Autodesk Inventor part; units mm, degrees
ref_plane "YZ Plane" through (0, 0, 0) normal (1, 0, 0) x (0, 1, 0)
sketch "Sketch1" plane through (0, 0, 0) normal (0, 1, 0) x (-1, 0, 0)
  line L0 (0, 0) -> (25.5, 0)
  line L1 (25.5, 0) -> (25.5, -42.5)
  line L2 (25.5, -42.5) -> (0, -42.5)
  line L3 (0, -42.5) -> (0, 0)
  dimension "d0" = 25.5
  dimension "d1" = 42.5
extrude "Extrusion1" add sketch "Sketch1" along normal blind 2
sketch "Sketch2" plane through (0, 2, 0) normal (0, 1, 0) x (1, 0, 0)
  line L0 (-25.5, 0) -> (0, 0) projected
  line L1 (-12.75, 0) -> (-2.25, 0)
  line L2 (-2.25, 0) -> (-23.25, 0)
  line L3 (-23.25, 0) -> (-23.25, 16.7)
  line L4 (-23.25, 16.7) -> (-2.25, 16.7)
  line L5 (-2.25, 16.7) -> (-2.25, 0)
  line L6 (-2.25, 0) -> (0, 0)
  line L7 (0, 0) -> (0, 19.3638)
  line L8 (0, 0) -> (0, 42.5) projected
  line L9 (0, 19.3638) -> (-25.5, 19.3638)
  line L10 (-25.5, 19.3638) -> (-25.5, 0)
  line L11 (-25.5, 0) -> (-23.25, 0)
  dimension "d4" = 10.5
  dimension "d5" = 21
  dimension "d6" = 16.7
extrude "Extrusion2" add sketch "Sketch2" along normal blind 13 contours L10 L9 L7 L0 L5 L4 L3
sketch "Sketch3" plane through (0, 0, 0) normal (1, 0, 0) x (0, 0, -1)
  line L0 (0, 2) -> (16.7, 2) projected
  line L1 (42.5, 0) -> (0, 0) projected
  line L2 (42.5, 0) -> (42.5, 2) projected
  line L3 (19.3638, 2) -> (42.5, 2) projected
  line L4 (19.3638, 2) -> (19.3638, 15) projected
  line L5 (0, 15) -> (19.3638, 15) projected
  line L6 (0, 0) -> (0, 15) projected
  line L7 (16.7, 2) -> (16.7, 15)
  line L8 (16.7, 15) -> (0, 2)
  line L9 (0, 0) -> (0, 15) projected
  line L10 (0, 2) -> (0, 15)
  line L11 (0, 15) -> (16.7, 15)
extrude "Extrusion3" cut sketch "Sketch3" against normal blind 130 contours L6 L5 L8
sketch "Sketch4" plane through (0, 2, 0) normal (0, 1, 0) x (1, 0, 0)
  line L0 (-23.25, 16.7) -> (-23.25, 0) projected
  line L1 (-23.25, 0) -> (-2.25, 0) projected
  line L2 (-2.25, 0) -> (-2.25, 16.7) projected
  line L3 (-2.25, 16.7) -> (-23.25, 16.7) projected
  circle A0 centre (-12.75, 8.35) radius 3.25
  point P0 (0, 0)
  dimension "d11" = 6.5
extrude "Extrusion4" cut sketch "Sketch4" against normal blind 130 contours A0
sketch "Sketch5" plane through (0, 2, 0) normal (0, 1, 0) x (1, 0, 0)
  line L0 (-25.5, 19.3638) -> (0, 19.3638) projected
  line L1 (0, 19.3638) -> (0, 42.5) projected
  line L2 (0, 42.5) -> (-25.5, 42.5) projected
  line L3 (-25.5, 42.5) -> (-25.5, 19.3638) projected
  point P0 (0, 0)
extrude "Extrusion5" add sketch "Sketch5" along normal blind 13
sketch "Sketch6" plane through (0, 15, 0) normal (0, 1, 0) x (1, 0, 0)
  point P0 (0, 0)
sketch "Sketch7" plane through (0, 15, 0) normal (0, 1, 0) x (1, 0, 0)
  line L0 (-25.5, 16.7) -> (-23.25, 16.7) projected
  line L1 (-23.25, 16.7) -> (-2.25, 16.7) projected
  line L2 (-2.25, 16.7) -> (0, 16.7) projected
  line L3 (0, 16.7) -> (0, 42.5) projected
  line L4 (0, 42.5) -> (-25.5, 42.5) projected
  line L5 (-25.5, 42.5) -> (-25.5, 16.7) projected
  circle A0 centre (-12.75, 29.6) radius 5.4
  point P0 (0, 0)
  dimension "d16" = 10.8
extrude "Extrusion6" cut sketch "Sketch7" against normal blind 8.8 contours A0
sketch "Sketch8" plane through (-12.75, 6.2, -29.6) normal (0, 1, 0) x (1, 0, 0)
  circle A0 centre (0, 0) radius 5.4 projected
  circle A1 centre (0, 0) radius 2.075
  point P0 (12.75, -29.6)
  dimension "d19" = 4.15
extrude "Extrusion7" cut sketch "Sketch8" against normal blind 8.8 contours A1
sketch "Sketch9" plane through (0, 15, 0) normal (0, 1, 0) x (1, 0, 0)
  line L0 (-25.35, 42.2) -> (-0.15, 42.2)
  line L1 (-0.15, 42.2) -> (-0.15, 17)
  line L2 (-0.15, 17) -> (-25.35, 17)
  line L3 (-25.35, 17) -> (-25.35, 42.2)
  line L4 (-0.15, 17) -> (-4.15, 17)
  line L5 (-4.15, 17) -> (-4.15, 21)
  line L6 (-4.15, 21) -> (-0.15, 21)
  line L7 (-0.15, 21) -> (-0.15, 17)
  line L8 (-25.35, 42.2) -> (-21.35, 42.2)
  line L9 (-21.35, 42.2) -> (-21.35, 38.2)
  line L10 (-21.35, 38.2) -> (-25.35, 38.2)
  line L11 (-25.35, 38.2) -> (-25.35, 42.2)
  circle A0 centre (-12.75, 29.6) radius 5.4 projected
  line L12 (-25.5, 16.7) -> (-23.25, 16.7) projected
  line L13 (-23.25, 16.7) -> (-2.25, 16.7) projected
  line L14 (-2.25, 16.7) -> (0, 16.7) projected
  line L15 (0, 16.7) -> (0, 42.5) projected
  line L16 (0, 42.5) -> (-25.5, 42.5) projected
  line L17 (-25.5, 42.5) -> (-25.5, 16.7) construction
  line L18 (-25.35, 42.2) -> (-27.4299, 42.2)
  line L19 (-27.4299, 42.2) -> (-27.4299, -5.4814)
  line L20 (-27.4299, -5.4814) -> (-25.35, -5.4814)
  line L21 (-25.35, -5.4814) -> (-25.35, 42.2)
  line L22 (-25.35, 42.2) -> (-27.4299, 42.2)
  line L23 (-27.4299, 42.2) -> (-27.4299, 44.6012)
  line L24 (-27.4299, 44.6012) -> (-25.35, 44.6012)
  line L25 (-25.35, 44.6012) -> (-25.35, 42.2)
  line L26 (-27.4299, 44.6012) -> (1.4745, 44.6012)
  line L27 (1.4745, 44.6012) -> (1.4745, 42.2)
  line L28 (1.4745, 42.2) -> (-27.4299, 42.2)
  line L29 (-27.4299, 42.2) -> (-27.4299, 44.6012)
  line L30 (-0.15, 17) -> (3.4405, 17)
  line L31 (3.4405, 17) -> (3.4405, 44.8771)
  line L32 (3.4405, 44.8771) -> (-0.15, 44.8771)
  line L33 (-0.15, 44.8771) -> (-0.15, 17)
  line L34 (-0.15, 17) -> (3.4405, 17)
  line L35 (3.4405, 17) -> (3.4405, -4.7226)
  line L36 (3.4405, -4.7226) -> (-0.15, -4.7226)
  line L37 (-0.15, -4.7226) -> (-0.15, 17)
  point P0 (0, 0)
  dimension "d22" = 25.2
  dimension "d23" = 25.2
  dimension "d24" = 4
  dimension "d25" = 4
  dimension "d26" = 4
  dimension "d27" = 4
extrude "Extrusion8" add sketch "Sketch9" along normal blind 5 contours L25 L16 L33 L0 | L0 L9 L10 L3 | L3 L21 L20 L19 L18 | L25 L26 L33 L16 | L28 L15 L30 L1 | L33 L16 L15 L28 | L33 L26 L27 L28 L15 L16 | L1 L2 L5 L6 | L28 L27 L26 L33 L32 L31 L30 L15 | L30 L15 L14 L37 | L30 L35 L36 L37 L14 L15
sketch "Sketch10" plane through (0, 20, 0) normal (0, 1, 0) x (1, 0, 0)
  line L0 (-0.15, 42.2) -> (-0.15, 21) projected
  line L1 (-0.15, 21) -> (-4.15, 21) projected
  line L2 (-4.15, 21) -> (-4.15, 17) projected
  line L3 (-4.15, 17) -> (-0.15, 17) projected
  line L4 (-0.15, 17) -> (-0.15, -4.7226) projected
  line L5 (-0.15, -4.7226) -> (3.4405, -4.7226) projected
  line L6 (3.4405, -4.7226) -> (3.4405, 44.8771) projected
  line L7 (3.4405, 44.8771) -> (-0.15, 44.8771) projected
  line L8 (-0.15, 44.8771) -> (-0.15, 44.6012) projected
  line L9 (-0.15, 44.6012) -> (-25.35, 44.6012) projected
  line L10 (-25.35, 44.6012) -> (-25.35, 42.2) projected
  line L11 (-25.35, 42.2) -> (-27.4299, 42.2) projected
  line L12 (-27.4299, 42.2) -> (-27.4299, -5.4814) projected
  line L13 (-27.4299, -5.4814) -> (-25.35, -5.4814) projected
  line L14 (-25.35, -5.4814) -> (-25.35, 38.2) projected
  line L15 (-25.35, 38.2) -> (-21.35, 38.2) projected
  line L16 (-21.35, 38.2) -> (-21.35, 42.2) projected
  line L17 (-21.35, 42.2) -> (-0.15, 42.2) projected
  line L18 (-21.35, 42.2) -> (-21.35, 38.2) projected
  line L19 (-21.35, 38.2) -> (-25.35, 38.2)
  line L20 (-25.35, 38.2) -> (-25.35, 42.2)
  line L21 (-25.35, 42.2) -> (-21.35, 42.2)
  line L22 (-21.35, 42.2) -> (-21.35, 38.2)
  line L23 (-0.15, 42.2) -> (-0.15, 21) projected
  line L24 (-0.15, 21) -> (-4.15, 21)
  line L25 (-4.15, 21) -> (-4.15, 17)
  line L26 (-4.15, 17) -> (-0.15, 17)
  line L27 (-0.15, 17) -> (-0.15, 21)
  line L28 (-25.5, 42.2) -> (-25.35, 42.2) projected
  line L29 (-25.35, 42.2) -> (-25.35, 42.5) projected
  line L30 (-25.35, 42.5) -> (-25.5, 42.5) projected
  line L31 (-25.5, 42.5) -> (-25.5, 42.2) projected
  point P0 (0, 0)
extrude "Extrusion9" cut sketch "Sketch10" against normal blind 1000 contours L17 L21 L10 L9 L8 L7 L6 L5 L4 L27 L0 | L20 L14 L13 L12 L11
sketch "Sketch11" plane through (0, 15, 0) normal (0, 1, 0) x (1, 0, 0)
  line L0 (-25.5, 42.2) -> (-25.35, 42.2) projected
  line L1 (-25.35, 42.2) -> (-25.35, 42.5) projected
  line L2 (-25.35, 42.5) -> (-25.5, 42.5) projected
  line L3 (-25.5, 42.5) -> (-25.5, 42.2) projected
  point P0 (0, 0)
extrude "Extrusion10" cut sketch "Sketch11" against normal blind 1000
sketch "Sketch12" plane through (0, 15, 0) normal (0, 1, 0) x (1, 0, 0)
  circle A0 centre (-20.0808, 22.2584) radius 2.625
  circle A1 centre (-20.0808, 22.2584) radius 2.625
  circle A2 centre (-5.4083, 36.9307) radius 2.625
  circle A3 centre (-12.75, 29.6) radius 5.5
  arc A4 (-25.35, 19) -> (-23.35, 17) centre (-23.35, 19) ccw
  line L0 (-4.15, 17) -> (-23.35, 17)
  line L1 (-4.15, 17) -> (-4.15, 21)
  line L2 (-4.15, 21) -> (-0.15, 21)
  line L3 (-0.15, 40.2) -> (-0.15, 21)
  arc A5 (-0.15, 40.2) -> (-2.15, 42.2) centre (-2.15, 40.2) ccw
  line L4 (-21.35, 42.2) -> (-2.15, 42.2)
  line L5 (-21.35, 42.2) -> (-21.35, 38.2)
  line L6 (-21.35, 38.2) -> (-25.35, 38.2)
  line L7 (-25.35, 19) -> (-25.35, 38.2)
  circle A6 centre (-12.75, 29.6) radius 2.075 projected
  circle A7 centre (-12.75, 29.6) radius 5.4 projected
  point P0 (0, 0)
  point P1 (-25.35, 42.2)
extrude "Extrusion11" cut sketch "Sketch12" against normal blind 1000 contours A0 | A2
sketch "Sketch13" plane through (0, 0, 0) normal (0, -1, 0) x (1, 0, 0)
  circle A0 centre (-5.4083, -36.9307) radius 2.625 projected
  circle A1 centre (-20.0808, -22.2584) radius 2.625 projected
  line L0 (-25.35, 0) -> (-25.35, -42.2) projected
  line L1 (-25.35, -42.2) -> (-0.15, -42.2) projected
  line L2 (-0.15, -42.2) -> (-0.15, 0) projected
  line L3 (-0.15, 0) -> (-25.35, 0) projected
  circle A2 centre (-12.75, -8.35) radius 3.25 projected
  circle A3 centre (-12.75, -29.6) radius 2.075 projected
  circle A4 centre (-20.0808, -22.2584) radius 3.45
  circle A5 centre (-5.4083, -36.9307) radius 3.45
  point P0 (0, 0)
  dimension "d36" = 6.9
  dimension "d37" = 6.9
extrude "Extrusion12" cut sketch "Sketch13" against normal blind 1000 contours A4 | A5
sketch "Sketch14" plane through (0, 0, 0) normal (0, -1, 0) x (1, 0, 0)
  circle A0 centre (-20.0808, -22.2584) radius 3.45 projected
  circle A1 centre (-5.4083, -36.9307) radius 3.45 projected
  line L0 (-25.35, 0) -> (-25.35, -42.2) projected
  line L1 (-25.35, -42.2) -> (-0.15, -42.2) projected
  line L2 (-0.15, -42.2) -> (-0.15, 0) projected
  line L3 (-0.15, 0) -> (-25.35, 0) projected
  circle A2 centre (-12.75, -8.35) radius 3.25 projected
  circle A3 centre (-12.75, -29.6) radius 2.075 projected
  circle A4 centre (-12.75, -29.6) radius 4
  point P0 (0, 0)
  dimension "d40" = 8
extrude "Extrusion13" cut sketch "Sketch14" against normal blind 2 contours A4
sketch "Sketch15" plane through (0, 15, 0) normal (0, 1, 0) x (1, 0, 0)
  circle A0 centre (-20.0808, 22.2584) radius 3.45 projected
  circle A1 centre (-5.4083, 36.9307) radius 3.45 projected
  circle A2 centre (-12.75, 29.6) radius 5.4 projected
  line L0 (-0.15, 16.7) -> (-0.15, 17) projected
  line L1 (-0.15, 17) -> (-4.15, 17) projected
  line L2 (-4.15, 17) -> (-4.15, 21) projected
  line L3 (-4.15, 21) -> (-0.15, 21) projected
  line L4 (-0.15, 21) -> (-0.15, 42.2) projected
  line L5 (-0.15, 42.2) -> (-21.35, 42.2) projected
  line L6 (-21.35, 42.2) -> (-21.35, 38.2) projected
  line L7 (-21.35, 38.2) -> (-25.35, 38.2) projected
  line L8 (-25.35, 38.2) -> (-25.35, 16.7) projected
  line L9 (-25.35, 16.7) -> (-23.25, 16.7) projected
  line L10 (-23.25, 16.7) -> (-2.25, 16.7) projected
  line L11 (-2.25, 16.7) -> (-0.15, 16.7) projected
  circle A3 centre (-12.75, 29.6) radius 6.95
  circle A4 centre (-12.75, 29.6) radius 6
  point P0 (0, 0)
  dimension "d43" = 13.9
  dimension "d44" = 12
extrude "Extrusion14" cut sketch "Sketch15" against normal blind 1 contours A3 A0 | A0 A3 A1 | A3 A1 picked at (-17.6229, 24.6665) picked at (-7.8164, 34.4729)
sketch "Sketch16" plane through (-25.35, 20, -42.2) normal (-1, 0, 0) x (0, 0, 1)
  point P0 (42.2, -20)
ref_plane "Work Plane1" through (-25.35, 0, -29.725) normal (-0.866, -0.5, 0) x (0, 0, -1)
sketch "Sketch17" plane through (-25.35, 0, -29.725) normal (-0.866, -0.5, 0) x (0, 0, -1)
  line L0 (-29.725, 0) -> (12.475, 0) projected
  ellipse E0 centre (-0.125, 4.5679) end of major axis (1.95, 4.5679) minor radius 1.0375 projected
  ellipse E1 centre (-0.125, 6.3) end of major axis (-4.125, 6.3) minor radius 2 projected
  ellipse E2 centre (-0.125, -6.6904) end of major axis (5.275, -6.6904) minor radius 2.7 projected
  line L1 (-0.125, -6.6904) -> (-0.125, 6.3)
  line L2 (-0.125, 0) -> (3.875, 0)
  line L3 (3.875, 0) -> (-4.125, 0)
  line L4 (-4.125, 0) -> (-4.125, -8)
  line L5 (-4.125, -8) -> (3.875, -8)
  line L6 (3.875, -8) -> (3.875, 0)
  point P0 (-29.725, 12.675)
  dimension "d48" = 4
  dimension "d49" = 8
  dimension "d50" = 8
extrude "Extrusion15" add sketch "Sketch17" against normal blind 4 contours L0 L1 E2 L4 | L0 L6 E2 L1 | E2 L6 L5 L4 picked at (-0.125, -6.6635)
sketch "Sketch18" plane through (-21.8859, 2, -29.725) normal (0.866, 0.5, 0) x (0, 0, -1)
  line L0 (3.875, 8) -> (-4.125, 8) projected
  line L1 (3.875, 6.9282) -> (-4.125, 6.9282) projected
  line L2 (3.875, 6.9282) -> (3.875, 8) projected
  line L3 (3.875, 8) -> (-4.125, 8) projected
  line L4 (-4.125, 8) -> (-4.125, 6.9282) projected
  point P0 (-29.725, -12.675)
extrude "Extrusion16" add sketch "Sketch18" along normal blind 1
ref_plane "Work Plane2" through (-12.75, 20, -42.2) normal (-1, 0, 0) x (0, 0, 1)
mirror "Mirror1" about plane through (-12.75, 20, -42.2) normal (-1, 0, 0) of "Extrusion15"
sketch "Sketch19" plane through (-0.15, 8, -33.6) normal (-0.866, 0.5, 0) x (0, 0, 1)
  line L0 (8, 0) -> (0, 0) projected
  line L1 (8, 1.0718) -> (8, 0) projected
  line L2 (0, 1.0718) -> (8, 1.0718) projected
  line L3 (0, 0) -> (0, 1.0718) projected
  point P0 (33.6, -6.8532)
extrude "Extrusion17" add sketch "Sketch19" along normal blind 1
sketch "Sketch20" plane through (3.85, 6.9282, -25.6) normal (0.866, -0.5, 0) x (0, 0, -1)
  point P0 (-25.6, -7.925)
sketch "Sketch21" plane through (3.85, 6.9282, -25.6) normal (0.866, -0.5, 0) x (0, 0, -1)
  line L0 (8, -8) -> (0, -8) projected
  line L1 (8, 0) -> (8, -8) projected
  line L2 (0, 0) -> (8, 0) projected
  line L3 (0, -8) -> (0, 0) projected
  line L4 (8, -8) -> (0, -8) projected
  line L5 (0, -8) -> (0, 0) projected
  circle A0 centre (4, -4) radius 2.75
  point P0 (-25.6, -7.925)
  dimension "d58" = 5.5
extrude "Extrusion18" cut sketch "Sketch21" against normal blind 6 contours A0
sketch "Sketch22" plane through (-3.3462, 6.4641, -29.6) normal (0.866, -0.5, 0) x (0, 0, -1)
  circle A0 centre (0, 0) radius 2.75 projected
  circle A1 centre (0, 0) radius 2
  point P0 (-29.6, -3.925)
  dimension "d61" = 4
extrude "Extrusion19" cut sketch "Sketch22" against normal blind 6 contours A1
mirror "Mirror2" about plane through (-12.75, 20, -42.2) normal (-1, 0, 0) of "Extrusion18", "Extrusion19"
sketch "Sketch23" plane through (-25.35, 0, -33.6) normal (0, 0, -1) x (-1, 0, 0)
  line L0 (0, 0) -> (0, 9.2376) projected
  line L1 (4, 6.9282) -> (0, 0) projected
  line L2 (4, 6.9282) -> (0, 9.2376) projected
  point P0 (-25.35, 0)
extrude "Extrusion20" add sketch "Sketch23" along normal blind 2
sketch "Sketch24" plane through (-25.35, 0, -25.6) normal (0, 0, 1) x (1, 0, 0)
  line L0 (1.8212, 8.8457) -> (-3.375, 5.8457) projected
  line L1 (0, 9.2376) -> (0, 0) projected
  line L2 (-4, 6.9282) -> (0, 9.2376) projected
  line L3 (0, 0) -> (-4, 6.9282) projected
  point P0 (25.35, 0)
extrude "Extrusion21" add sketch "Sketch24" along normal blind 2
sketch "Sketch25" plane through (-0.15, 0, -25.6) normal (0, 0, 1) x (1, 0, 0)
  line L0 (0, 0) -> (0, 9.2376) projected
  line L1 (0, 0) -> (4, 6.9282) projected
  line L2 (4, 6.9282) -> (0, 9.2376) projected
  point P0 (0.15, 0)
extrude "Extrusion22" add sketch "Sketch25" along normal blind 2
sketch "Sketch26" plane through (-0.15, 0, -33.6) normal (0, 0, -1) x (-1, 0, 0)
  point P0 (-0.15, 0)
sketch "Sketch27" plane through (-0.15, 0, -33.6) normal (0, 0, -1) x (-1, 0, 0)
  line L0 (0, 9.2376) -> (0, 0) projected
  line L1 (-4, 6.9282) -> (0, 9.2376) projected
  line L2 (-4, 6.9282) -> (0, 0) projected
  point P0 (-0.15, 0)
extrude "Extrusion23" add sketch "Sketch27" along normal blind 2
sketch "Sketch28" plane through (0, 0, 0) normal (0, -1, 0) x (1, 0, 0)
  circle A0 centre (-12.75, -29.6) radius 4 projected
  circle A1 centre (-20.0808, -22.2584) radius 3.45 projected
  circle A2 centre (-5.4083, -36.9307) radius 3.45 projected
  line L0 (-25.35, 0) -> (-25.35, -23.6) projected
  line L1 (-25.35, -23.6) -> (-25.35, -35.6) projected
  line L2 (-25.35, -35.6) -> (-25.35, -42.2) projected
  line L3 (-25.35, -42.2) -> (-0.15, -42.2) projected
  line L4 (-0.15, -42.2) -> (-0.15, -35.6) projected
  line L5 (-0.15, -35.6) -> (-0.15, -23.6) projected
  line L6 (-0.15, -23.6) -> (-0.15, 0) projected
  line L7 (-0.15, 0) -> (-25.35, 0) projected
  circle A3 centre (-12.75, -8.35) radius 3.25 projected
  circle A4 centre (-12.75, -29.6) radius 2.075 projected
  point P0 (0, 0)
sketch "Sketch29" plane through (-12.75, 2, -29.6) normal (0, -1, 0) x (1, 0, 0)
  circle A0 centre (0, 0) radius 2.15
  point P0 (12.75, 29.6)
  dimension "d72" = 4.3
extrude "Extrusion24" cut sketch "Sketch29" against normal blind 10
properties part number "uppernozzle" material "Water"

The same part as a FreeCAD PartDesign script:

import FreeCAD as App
import Part
import Sketcher

V = App.Vector
Q = App.Units.Quantity

doc = App.newDocument("Part")
body = doc.addObject("PartDesign::Body", "Body")
body.AllowCompound = True

sketch1 = body.newObject("Sketcher::SketchObject", "Sketch")
sketch1.AttachmentSupport = (doc.getObject("XZ_Plane"), [""])
sketch1.MapMode = "FlatFace"
sketch1.addGeometry(Part.LineSegment(V(-26, 0, 0), V(0, 0, 0)), False)
sketch1.addGeometry(Part.LineSegment(V(0, 0, 0), V(0, -42, 0)), False)
sketch1.addGeometry(Part.LineSegment(V(0, -42, 0), V(-26, -42, 0)), False)
sketch1.addGeometry(Part.LineSegment(V(-26, -42, 0), V(-26, 0, 0)), False)
sketch1.addConstraint(Sketcher.Constraint("Coincident", 0, 2, 1, 1))
sketch1.addConstraint(Sketcher.Constraint("Coincident", 1, 2, 2, 1))
sketch1.addConstraint(Sketcher.Constraint("Coincident", 2, 2, 3, 1))
sketch1.addConstraint(Sketcher.Constraint("Coincident", 3, 2, 0, 1))
sketch1.addConstraint(Sketcher.Constraint("Horizontal", 0))
sketch1.addConstraint(Sketcher.Constraint("Vertical", 1))
sketch1.addConstraint(Sketcher.Constraint("Horizontal", 2))
sketch1.addConstraint(Sketcher.Constraint("Vertical", 3))
sketch1.addConstraint(Sketcher.Constraint("Coincident", 0, 2, -1, 1))
sketch1.addConstraint(Sketcher.Constraint("DistanceX", 0, 1, 0, 2, Q("25.5 mm")))
sketch1.addConstraint(Sketcher.Constraint("DistanceY", 1, 2, 1, 1, Q("42.5 mm")))
pad1 = body.newObject("PartDesign::Pad", "Pad")
pad1.Profile = sketch1
pad1.Length = 2
pad1.Reversed = True

sketch2 = body.newObject("Sketcher::SketchObject", "Sketch001")
sketch2.AttachmentSupport = (doc.getObject("XZ_Plane"), [""])
sketch2.MapMode = "FlatFace"
sketch2.AttachmentOffset = App.Placement(V(0, 0, -2), App.Rotation())
sketch2.addGeometry(Part.LineSegment(V(-25.5, -19.4, 0), V(-25.5, 0, 0)), False)
sketch2.addGeometry(Part.LineSegment(V(-25.5, 0, 0), V(-23.2, 0, 0)), False)
sketch2.addGeometry(Part.LineSegment(V(-23.2, 0, 0), V(-23.2, -16.7, 0)), False)
sketch2.addGeometry(Part.LineSegment(V(-23.2, -16.7, 0), V(-2.2, -16.7, 0)), False)
sketch2.addGeometry(Part.LineSegment(V(-2.2, -16.7, 0), V(-2.2, 0, 0)), False)
sketch2.addGeometry(Part.LineSegment(V(-2.2, 0, 0), V(0, 0, 0)), False)
sketch2.addGeometry(Part.LineSegment(V(0, 0, 0), V(0, -19.4, 0)), False)
sketch2.addGeometry(Part.LineSegment(V(0, -19.4, 0), V(-25.5, -19.4, 0)), False)
sketch2.addConstraint(Sketcher.Constraint("Coincident", 0, 2, 1, 1))
sketch2.addConstraint(Sketcher.Constraint("Coincident", 1, 2, 2, 1))
sketch2.addConstraint(Sketcher.Constraint("Coincident", 2, 2, 3, 1))
sketch2.addConstraint(Sketcher.Constraint("Coincident", 3, 2, 4, 1))
sketch2.addConstraint(Sketcher.Constraint("Coincident", 4, 2, 5, 1))
sketch2.addConstraint(Sketcher.Constraint("Coincident", 5, 2, 6, 1))
sketch2.addConstraint(Sketcher.Constraint("Coincident", 6, 2, 7, 1))
sketch2.addConstraint(Sketcher.Constraint("Coincident", 7, 2, 0, 1))
sketch2.addConstraint(Sketcher.Constraint("Vertical", 0))
sketch2.addConstraint(Sketcher.Constraint("Horizontal", 1))
sketch2.addConstraint(Sketcher.Constraint("Vertical", 2))
sketch2.addConstraint(Sketcher.Constraint("Horizontal", 3))
sketch2.addConstraint(Sketcher.Constraint("Vertical", 4))
sketch2.addConstraint(Sketcher.Constraint("Horizontal", 5))
sketch2.addConstraint(Sketcher.Constraint("Vertical", 6))
sketch2.addConstraint(Sketcher.Constraint("Horizontal", 7))
sketch2.addConstraint(Sketcher.Constraint("Coincident", 5, 2, -1, 1))
sketch2.addConstraint(Sketcher.Constraint("PointOnObject", 0, 2, -1))
sketch2.addConstraint(Sketcher.Constraint("Equal", 1, 5))
sketch2.addConstraint(Sketcher.Constraint("DistanceX", 3, 1, 3, 2, Q("21 mm")))
sketch2.addConstraint(Sketcher.Constraint("DistanceY", 2, 2, 2, 1, Q("16.7 mm")))
sketch2.addConstraint(Sketcher.Constraint("DistanceX", 7, 2, 7, 1, Q("25.5 mm")))
sketch2.addConstraint(Sketcher.Constraint("DistanceY", 0, 1, 0, 2, Q("19.3638 mm")))
pad2 = body.newObject("PartDesign::Pad", "Pad001")
pad2.Profile = sketch2
pad2.Length = 13
pad2.Reversed = True

sketch3 = body.newObject("Sketcher::SketchObject", "Sketch002")
sketch3.AttachmentSupport = (doc.getObject("YZ_Plane"), [""])
sketch3.MapMode = "FlatFace"
sketch3.addGeometry(Part.LineSegment(V(15, 0, 0), V(2, 0, 0)), False)
sketch3.addGeometry(Part.LineSegment(V(2, 0, 0), V(15, -17, 0)), False)
sketch3.addGeometry(Part.LineSegment(V(15, -17, 0), V(15, 0, 0)), False)
sketch3.addConstraint(Sketcher.Constraint("Coincident", 0, 2, 1, 1))
sketch3.addConstraint(Sketcher.Constraint("Coincident", 1, 2, 2, 1))
sketch3.addConstraint(Sketcher.Constraint("Coincident", 2, 2, 0, 1))
sketch3.addConstraint(Sketcher.Constraint("Horizontal", 0))
sketch3.addConstraint(Sketcher.Constraint("Vertical", 2))
sketch3.addConstraint(Sketcher.Constraint("PointOnObject", 0, 2, -1))
sketch3.addConstraint(Sketcher.Constraint("DistanceX", 0, 2, 0, 1, Q("13 mm")))
sketch3.addConstraint(Sketcher.Constraint("DistanceY", 2, 1, 2, 2, Q("16.7 mm")))
sketch3.addConstraint(Sketcher.Constraint("DistanceX", -1, 1, 0, 2, Q("2 mm")))
pocket1 = body.newObject("PartDesign::Pocket", "Pocket")
pocket1.Profile = sketch3
pocket1.Length = 130

sketch4 = body.newObject("Sketcher::SketchObject", "Sketch003")
sketch4.AttachmentSupport = (doc.getObject("XZ_Plane"), [""])
sketch4.MapMode = "FlatFace"
sketch4.AttachmentOffset = App.Placement(V(0, 0, -2), App.Rotation())
sketch4.addGeometry(Part.Circle(V(-12.8, -8.3, 0), V(0, 0, 1), 3.2), False)
sketch4.addConstraint(Sketcher.Constraint("Diameter", 0, Q("6.5 mm")))
sketch4.addConstraint(Sketcher.Constraint("DistanceX", 0, 3, -1, 1, Q("12.75 mm")))
sketch4.addConstraint(Sketcher.Constraint("DistanceY", 0, 3, -1, 1, Q("8.35 mm")))
pocket2 = body.newObject("PartDesign::Pocket", "Pocket001")
pocket2.Profile = sketch4
pocket2.Length = 130
pocket2.Reversed = True

sketch5 = body.newObject("Sketcher::SketchObject", "Sketch004")
sketch5.AttachmentSupport = (doc.getObject("XZ_Plane"), [""])
sketch5.MapMode = "FlatFace"
sketch5.AttachmentOffset = App.Placement(V(0, 0, -2), App.Rotation())
sketch5.addGeometry(Part.LineSegment(V(-26, -42, 0), V(-26, -19, 0)), False)
sketch5.addGeometry(Part.LineSegment(V(-26, -19, 0), V(0, -19, 0)), False)
sketch5.addGeometry(Part.LineSegment(V(0, -19, 0), V(0, -42, 0)), False)
sketch5.addGeometry(Part.LineSegment(V(0, -42, 0), V(-26, -42, 0)), False)
sketch5.addConstraint(Sketcher.Constraint("Coincident", 0, 2, 1, 1))
sketch5.addConstraint(Sketcher.Constraint("Coincident", 1, 2, 2, 1))
sketch5.addConstraint(Sketcher.Constraint("Coincident", 2, 2, 3, 1))
sketch5.addConstraint(Sketcher.Constraint("Coincident", 3, 2, 0, 1))
sketch5.addConstraint(Sketcher.Constraint("Vertical", 0))
sketch5.addConstraint(Sketcher.Constraint("Horizontal", 1))
sketch5.addConstraint(Sketcher.Constraint("Vertical", 2))
sketch5.addConstraint(Sketcher.Constraint("Horizontal", 3))
sketch5.addConstraint(Sketcher.Constraint("PointOnObject", 1, 2, -2))
sketch5.addConstraint(Sketcher.Constraint("DistanceX", 1, 1, 1, 2, Q("25.5 mm")))
sketch5.addConstraint(Sketcher.Constraint("DistanceY", 2, 2, -1, 1, Q("42.5 mm")))
sketch5.addConstraint(Sketcher.Constraint("DistanceY", 0, 1, 0, 2, Q("23.1362 mm")))
pad3 = body.newObject("PartDesign::Pad", "Pad002")
pad3.Profile = sketch5
pad3.Length = 13
pad3.Reversed = True

sketch6 = body.newObject("Sketcher::SketchObject", "Sketch005")
sketch6.AttachmentSupport = (doc.getObject("XZ_Plane"), [""])
sketch6.MapMode = "FlatFace"
sketch6.AttachmentOffset = App.Placement(V(0, 0, -15), App.Rotation())
sketch6.addGeometry(Part.Circle(V(-13, -30, 0), V(0, 0, 1), 5), False)
sketch6.addConstraint(Sketcher.Constraint("Diameter", 0, Q("10.8 mm")))
sketch6.addConstraint(Sketcher.Constraint("DistanceY", 0, 3, -1, 1, Q("29.6 mm")))
sketch6.addConstraint(Sketcher.Constraint("DistanceX", 0, 3, -1, 1, Q("12.75 mm")))
pocket3 = body.newObject("PartDesign::Pocket", "Pocket002")
pocket3.Profile = sketch6
pocket3.Length = 8.8
pocket3.Reversed = True

sketch7 = body.newObject("Sketcher::SketchObject", "Sketch006")
sketch7.AttachmentSupport = (doc.getObject("XZ_Plane"), [""])
sketch7.MapMode = "FlatFace"
sketch7.AttachmentOffset = App.Placement(V(0, 0, -6.2), App.Rotation())
sketch7.addGeometry(Part.Circle(V(-12.8, -29.6, 0), V(0, 0, 1), 2.1), False)
sketch7.addConstraint(Sketcher.Constraint("Diameter", 0, Q("4.15 mm")))
sketch7.addConstraint(Sketcher.Constraint("DistanceY", 0, 3, -1, 1, Q("29.6 mm")))
sketch7.addConstraint(Sketcher.Constraint("DistanceX", 0, 3, -1, 1, Q("12.75 mm")))
pocket4 = body.newObject("PartDesign::Pocket", "Pocket003")
pocket4.Profile = sketch7
pocket4.Length = 8.8
pocket4.Reversed = True

sketch8 = body.newObject("Sketcher::SketchObject", "Sketch007")
sketch8.AttachmentSupport = (doc.getObject("XZ_Plane"), [""])
sketch8.MapMode = "FlatFace"
sketch8.AttachmentOffset = App.Placement(V(0, 0, -15), App.Rotation())
sketch8.addGeometry(Part.LineSegment(V(-25.35, -42.2, 0), V(-27.43, -42.2, 0)), False)
sketch8.addGeometry(Part.LineSegment(V(-27.43, -42.2, 0), V(-27.43, 5.48, 0)), False)
sketch8.addGeometry(Part.LineSegment(V(-27.43, 5.48, 0), V(-25.35, 5.48, 0)), False)
sketch8.addGeometry(Part.LineSegment(V(-25.35, 5.48, 0), V(-25.35, -38.2, 0)), False)
sketch8.addGeometry(Part.LineSegment(V(-25.35, -38.2, 0), V(-21.35, -38.2, 0)), False)
sketch8.addGeometry(Part.LineSegment(V(-21.35, -38.2, 0), V(-21.35, -42.2, 0)), False)
sketch8.addGeometry(Part.LineSegment(V(-21.35, -42.2, 0), V(-0.15, -42.2, 0)), False)
sketch8.addGeometry(Part.LineSegment(V(-0.15, -42.2, 0), V(-0.15, -21, 0)), False)
sketch8.addGeometry(Part.LineSegment(V(-0.15, -21, 0), V(-4.15, -21, 0)), False)
sketch8.addGeometry(Part.LineSegment(V(-4.15, -21, 0), V(-4.15, -17, 0)), False)
sketch8.addGeometry(Part.LineSegment(V(-4.15, -17, 0), V(-0.15, -17, 0)), False)
sketch8.addGeometry(Part.LineSegment(V(-0.15, -17, 0), V(-0.15, 4.72, 0)), False)
sketch8.addGeometry(Part.LineSegment(V(-0.15, 4.72, 0), V(3.44, 4.72, 0)), False)
sketch8.addGeometry(Part.LineSegment(V(3.44, 4.72, 0), V(3.44, -44.88, 0)), False)
sketch8.addGeometry(Part.LineSegment(V(3.44, -44.88, 0), V(-0.15, -44.88, 0)), False)
sketch8.addGeometry(Part.LineSegment(V(-0.15, -44.88, 0), V(-0.15, -44.6, 0)), False)
sketch8.addGeometry(Part.LineSegment(V(-0.15, -44.6, 0), V(-25.35, -44.6, 0)), False)
sketch8.addGeometry(Part.LineSegment(V(-25.35, -44.6, 0), V(-25.35, -42.2, 0)), False)
sketch8.addConstraint(Sketcher.Constraint("Coincident", 0, 2, 1, 1))
sketch8.addConstraint(Sketcher.Constraint("Coincident", 1, 2, 2, 1))
sketch8.addConstraint(Sketcher.Constraint("Coincident", 2, 2, 3, 1))
sketch8.addConstraint(Sketcher.Constraint("Coincident", 3, 2, 4, 1))
sketch8.addConstraint(Sketcher.Constraint("Coincident", 4, 2, 5, 1))
sketch8.addConstraint(Sketcher.Constraint("Coincident", 5, 2, 6, 1))
sketch8.addConstraint(Sketcher.Constraint("Coincident", 6, 2, 7, 1))
sketch8.addConstraint(Sketcher.Constraint("Coincident", 7, 2, 8, 1))
sketch8.addConstraint(Sketcher.Constraint("Coincident", 8, 2, 9, 1))
sketch8.addConstraint(Sketcher.Constraint("Coincident", 9, 2, 10, 1))
sketch8.addConstraint(Sketcher.Constraint("Coincident", 10, 2, 11, 1))
sketch8.addConstraint(Sketcher.Constraint("Coincident", 11, 2, 12, 1))
sketch8.addConstraint(Sketcher.Constraint("Coincident", 12, 2, 13, 1))
sketch8.addConstraint(Sketcher.Constraint("Coincident", 13, 2, 14, 1))
sketch8.addConstraint(Sketcher.Constraint("Coincident", 14, 2, 15, 1))
sketch8.addConstraint(Sketcher.Constraint("Coincident", 15, 2, 16, 1))
sketch8.addConstraint(Sketcher.Constraint("Coincident", 16, 2, 17, 1))
sketch8.addConstraint(Sketcher.Constraint("Coincident", 17, 2, 0, 1))
sketch8.addConstraint(Sketcher.Constraint("Horizontal", 0))
sketch8.addConstraint(Sketcher.Constraint("Vertical", 1))
sketch8.addConstraint(Sketcher.Constraint("Horizontal", 2))
sketch8.addConstraint(Sketcher.Constraint("Vertical", 3))
sketch8.addConstraint(Sketcher.Constraint("Horizontal", 4))
sketch8.addConstraint(Sketcher.Constraint("Vertical", 5))
sketch8.addConstraint(Sketcher.Constraint("Horizontal", 6))
sketch8.addConstraint(Sketcher.Constraint("Vertical", 7))
sketch8.addConstraint(Sketcher.Constraint("Horizontal", 8))
sketch8.addConstraint(Sketcher.Constraint("Vertical", 9))
sketch8.addConstraint(Sketcher.Constraint("Horizontal", 10))
sketch8.addConstraint(Sketcher.Constraint("Vertical", 11))
sketch8.addConstraint(Sketcher.Constraint("Horizontal", 12))
sketch8.addConstraint(Sketcher.Constraint("Vertical", 13))
sketch8.addConstraint(Sketcher.Constraint("Horizontal", 14))
sketch8.addConstraint(Sketcher.Constraint("Vertical", 15))
sketch8.addConstraint(Sketcher.Constraint("Horizontal", 16))
sketch8.addConstraint(Sketcher.Constraint("Vertical", 17))
sketch8.addConstraint(Sketcher.Constraint("Horizontal", 0, 2, 5, 2))
sketch8.addConstraint(Sketcher.Constraint("Vertical", 7, 2, 10, 2))
sketch8.addConstraint(Sketcher.Constraint("Vertical", 11, 2, 14, 2))
sketch8.addConstraint(Sketcher.Constraint("Vertical", 3, 2, 16, 2))
sketch8.addConstraint(Sketcher.Constraint("Equal", 4, 8))
sketch8.addConstraint(Sketcher.Constraint("Equal", 10, 5))
sketch8.addConstraint(Sketcher.Constraint("Equal", 6, 7))
sketch8.addConstraint(Sketcher.Constraint("Equal", 5, 9))
sketch8.addConstraint(Sketcher.Constraint("DistanceX", 4, 1, 4, 2, Q("4 mm")))
sketch8.addConstraint(Sketcher.Constraint("DistanceX", 16, 2, 16, 1, Q("25.2 mm")))
sketch8.addConstraint(Sketcher.Constraint("DistanceY", 7, 2, -1, 1, Q("21 mm")))
sketch8.addConstraint(Sketcher.Constraint("DistanceX", 0, 2, 0, 1, Q("2.08 mm")))
sketch8.addConstraint(Sketcher.Constraint("DistanceY", 15, 1, 15, 2, Q("0.276 mm")))
sketch8.addConstraint(Sketcher.Constraint("DistanceX", 0, 2, -1, 1, Q("27.43 mm")))
sketch8.addConstraint(Sketcher.Constraint("DistanceX", 12, 1, 12, 2, Q("3.5905 mm")))
sketch8.addConstraint(Sketcher.Constraint("DistanceY", 1, 1, 1, 2, Q("47.6814 mm")))
sketch8.addConstraint(Sketcher.Constraint("DistanceY", 11, 1, 11, 2, Q("21.7226 mm")))
sketch8.addConstraint(Sketcher.Constraint("DistanceY", 13, 2, 13, 1, Q("49.5997 mm")))
pad4 = body.newObject("PartDesign::Pad", "Pad003")
pad4.Profile = sketch8
pad4.Length = 5
pad4.Reversed = True

sketch9 = body.newObject("Sketcher::SketchObject", "Sketch008")
sketch9.AttachmentSupport = (doc.getObject("XZ_Plane"), [""])
sketch9.MapMode = "FlatFace"
sketch9.AttachmentOffset = App.Placement(V(0, 0, -20), App.Rotation())
sketch9.addGeometry(Part.LineSegment(V(-25.35, -42.2, 0), V(-0.15, -42.2, 0)), False)
sketch9.addGeometry(Part.LineSegment(V(-0.15, -42.2, 0), V(-0.15, 4.72, 0)), False)
sketch9.addGeometry(Part.LineSegment(V(-0.15, 4.72, 0), V(3.44, 4.72, 0)), False)
sketch9.addGeometry(Part.LineSegment(V(3.44, 4.72, 0), V(3.44, -44.88, 0)), False)
sketch9.addGeometry(Part.LineSegment(V(3.44, -44.88, 0), V(-0.15, -44.88, 0)), False)
sketch9.addGeometry(Part.LineSegment(V(-0.15, -44.88, 0), V(-0.15, -44.6, 0)), False)
sketch9.addGeometry(Part.LineSegment(V(-0.15, -44.6, 0), V(-25.35, -44.6, 0)), False)
sketch9.addGeometry(Part.LineSegment(V(-25.35, -44.6, 0), V(-25.35, -42.2, 0)), False)
sketch9.addGeometry(Part.LineSegment(V(-25.35, 5.48, 0), V(-25.35, -42.2, 0)), False)
sketch9.addGeometry(Part.LineSegment(V(-25.35, -42.2, 0), V(-27.43, -42.2, 0)), False)
sketch9.addGeometry(Part.LineSegment(V(-27.43, -42.2, 0), V(-27.43, 5.48, 0)), False)
sketch9.addGeometry(Part.LineSegment(V(-27.43, 5.48, 0), V(-25.35, 5.48, 0)), False)
sketch9.addConstraint(Sketcher.Constraint("Coincident", 0, 2, 1, 1))
sketch9.addConstraint(Sketcher.Constraint("Coincident", 1, 2, 2, 1))
sketch9.addConstraint(Sketcher.Constraint("Coincident", 2, 2, 3, 1))
sketch9.addConstraint(Sketcher.Constraint("Coincident", 3, 2, 4, 1))
sketch9.addConstraint(Sketcher.Constraint("Coincident", 4, 2, 5, 1))
sketch9.addConstraint(Sketcher.Constraint("Coincident", 5, 2, 6, 1))
sketch9.addConstraint(Sketcher.Constraint("Coincident", 6, 2, 7, 1))
sketch9.addConstraint(Sketcher.Constraint("Coincident", 7, 2, 0, 1))
sketch9.addConstraint(Sketcher.Constraint("Coincident", 8, 2, 9, 1))
sketch9.addConstraint(Sketcher.Constraint("Coincident", 9, 2, 10, 1))
sketch9.addConstraint(Sketcher.Constraint("Coincident", 10, 2, 11, 1))
sketch9.addConstraint(Sketcher.Constraint("Coincident", 11, 2, 8, 1))
sketch9.addConstraint(Sketcher.Constraint("Horizontal", 0))
sketch9.addConstraint(Sketcher.Constraint("Vertical", 1))
sketch9.addConstraint(Sketcher.Constraint("Horizontal", 2))
sketch9.addConstraint(Sketcher.Constraint("Vertical", 3))
sketch9.addConstraint(Sketcher.Constraint("Horizontal", 4))
sketch9.addConstraint(Sketcher.Constraint("Vertical", 5))
sketch9.addConstraint(Sketcher.Constraint("Horizontal", 6))
sketch9.addConstraint(Sketcher.Constraint("Vertical", 7))
sketch9.addConstraint(Sketcher.Constraint("Vertical", 8))
sketch9.addConstraint(Sketcher.Constraint("Horizontal", 9))
sketch9.addConstraint(Sketcher.Constraint("Vertical", 10))
sketch9.addConstraint(Sketcher.Constraint("Horizontal", 11))
sketch9.addConstraint(Sketcher.Constraint("Coincident", 8, 2, 7, 2))
sketch9.addConstraint(Sketcher.Constraint("Vertical", 1, 2, 4, 2))
sketch9.addConstraint(Sketcher.Constraint("DistanceX", 0, 1, 0, 2, Q("25.2 mm")))
sketch9.addConstraint(Sketcher.Constraint("DistanceX", 9, 2, 9, 1, Q("2.08 mm")))
sketch9.addConstraint(Sketcher.Constraint("DistanceY", 0, 2, -1, 1, Q("42.2 mm")))
sketch9.addConstraint(Sketcher.Constraint("DistanceY", 5, 1, 5, 2, Q("0.276 mm")))
sketch9.addConstraint(Sketcher.Constraint("DistanceX", 0, 2, -1, 1, Q("0.15 mm")))
sketch9.addConstraint(Sketcher.Constraint("DistanceX", 2, 1, 2, 2, Q("3.5905 mm")))
sketch9.addConstraint(Sketcher.Constraint("DistanceY", 1, 1, 1, 2, Q("46.9226 mm")))
sketch9.addConstraint(Sketcher.Constraint("DistanceY", 3, 2, 3, 1, Q("49.5997 mm")))
sketch9.addConstraint(Sketcher.Constraint("DistanceY", 8, 2, 8, 1, Q("47.6814 mm")))
pocket5 = body.newObject("PartDesign::Pocket", "Pocket004")
pocket5.Profile = sketch9
pocket5.Length = 1000
pocket5.Reversed = True

sketch10 = body.newObject("Sketcher::SketchObject", "Sketch009")
sketch10.AttachmentSupport = (doc.getObject("XZ_Plane"), [""])
sketch10.MapMode = "FlatFace"
sketch10.AttachmentOffset = App.Placement(V(0, 0, -15), App.Rotation())
sketch10.addGeometry(Part.LineSegment(V(-25.5, -42.5, 0), V(-25.5, -42.2, 0)), False)
sketch10.addGeometry(Part.LineSegment(V(-25.5, -42.2, 0), V(-25.35, -42.2, 0)), False)
sketch10.addGeometry(Part.LineSegment(V(-25.35, -42.2, 0), V(-25.35, -42.5, 0)), False)
sketch10.addGeometry(Part.LineSegment(V(-25.35, -42.5, 0), V(-25.5, -42.5, 0)), False)
sketch10.addConstraint(Sketcher.Constraint("Coincident", 0, 2, 1, 1))
sketch10.addConstraint(Sketcher.Constraint("Coincident", 1, 2, 2, 1))
sketch10.addConstraint(Sketcher.Constraint("Coincident", 2, 2, 3, 1))
sketch10.addConstraint(Sketcher.Constraint("Coincident", 3, 2, 0, 1))
sketch10.addConstraint(Sketcher.Constraint("Vertical", 0))
sketch10.addConstraint(Sketcher.Constraint("Horizontal", 1))
sketch10.addConstraint(Sketcher.Constraint("Vertical", 2))
sketch10.addConstraint(Sketcher.Constraint("Horizontal", 3))
sketch10.addConstraint(Sketcher.Constraint("DistanceY", 0, 1, 0, 2, Q("0.3 mm")))
sketch10.addConstraint(Sketcher.Constraint("DistanceX", 1, 1, 1, 2, Q("0.15 mm")))
sketch10.addConstraint(Sketcher.Constraint("DistanceX", 0, 2, -1, 1, Q("25.5 mm")))
sketch10.addConstraint(Sketcher.Constraint("DistanceY", 0, 2, -1, 1, Q("42.2 mm")))
pocket6 = body.newObject("PartDesign::Pocket", "Pocket005")
pocket6.Profile = sketch10
pocket6.Length = 1000
pocket6.Reversed = True

sketch11 = body.newObject("Sketcher::SketchObject", "Sketch010")
sketch11.AttachmentSupport = (doc.getObject("XZ_Plane"), [""])
sketch11.MapMode = "FlatFace"
sketch11.AttachmentOffset = App.Placement(V(0, 0, -15), App.Rotation())
sketch11.addGeometry(Part.Circle(V(-20.1, -22.3, 0), V(0, 0, 1), 2.6), False)
sketch11.addGeometry(Part.Circle(V(-5.4, -36.9, 0), V(0, 0, 1), 2.6), False)
sketch11.addConstraint(Sketcher.Constraint("Equal", 0, 1))
sketch11.addConstraint(Sketcher.Constraint("Diameter", 0, Q("5.25 mm")))
sketch11.addConstraint(Sketcher.Constraint("DistanceX", 0, 3, -1, 1, Q("20.0808 mm")))
sketch11.addConstraint(Sketcher.Constraint("DistanceY", 0, 3, -1, 1, Q("22.2584 mm")))
sketch11.addConstraint(Sketcher.Constraint("DistanceX", 1, 3, -1, 1, Q("5.4083 mm")))
sketch11.addConstraint(Sketcher.Constraint("DistanceY", 1, 3, -1, 1, Q("36.9307 mm")))
pocket7 = body.newObject("PartDesign::Pocket", "Pocket006")
pocket7.Profile = sketch11
pocket7.Length = 1000
pocket7.Reversed = True

sketch12 = body.newObject("Sketcher::SketchObject", "Sketch011")
sketch12.AttachmentSupport = (doc.getObject("XZ_Plane"), [""])
sketch12.MapMode = "FlatFace"
sketch12.addGeometry(Part.Circle(V(-20.1, -22.3, 0), V(0, 0, 1), 3.5), False)
sketch12.addGeometry(Part.Circle(V(-20.1, -22.3, 0), V(0, 0, 1), 2.6), False)
sketch12.addGeometry(Part.Circle(V(-5.4, -36.9, 0), V(0, 0, 1), 3.5), False)
sketch12.addGeometry(Part.Circle(V(-5.4, -36.9, 0), V(0, 0, 1), 2.6), False)
sketch12.addConstraint(Sketcher.Constraint("Coincident", 1, 3, 0, 3))
sketch12.addConstraint(Sketcher.Constraint("Coincident", 3, 3, 2, 3))
sketch12.addConstraint(Sketcher.Constraint("Equal", 0, 2))
sketch12.addConstraint(Sketcher.Constraint("Equal", 1, 3))
sketch12.addConstraint(Sketcher.Constraint("Diameter", 0, Q("6.9 mm")))
sketch12.addConstraint(Sketcher.Constraint("Diameter", 1, Q("5.25 mm")))
sketch12.addConstraint(Sketcher.Constraint("DistanceX", 0, 3, -1, 1, Q("20.0808 mm")))
sketch12.addConstraint(Sketcher.Constraint("DistanceY", 0, 3, -1, 1, Q("22.2584 mm")))
sketch12.addConstraint(Sketcher.Constraint("DistanceX", 2, 3, -1, 1, Q("5.4083 mm")))
sketch12.addConstraint(Sketcher.Constraint("DistanceY", 2, 3, -1, 1, Q("36.9307 mm")))
pocket8 = body.newObject("PartDesign::Pocket", "Pocket007")
pocket8.Profile = sketch12
pocket8.Length = 1000

sketch13 = body.newObject("Sketcher::SketchObject", "Sketch012")
sketch13.AttachmentSupport = (doc.getObject("XZ_Plane"), [""])
sketch13.MapMode = "FlatFace"
sketch13.addGeometry(Part.Circle(V(-12.8, -29.6, 0), V(0, 0, 1), 4), False)
sketch13.addGeometry(Part.Circle(V(-12.8, -29.6, 0), V(0, 0, 1), 2.1), False)
sketch13.addConstraint(Sketcher.Constraint("Coincident", 1, 3, 0, 3))
sketch13.addConstraint(Sketcher.Constraint("Diameter", 0, Q("8 mm")))
sketch13.addConstraint(Sketcher.Constraint("Diameter", 1, Q("4.15 mm")))
sketch13.addConstraint(Sketcher.Constraint("DistanceY", 0, 3, -1, 1, Q("29.6 mm")))
sketch13.addConstraint(Sketcher.Constraint("DistanceX", 0, 3, -1, 1, Q("12.75 mm")))
pocket9 = body.newObject("PartDesign::Pocket", "Pocket008")
pocket9.Profile = sketch13
pocket9.Length = 2

sketch14 = body.newObject("Sketcher::SketchObject", "Sketch013")
sketch14.AttachmentSupport = (doc.getObject("XZ_Plane"), [""])
sketch14.MapMode = "FlatFace"
sketch14.AttachmentOffset = App.Placement(V(0, 0, -15), App.Rotation())
sketch14.addGeometry(Part.Circle(V(-13, -30, 0), V(0, 0, 1), 7), False)
sketch14.addGeometry(Part.Circle(V(-13, -30, 0), V(0, 0, 1), 6), False)
sketch14.addConstraint(Sketcher.Constraint("Coincident", 1, 3, 0, 3))
sketch14.addConstraint(Sketcher.Constraint("Diameter", 1, Q("12 mm")))
sketch14.addConstraint(Sketcher.Constraint("Diameter", 0, Q("13.9 mm")))
sketch14.addConstraint(Sketcher.Constraint("DistanceY", 0, 3, -1, 1, Q("29.6 mm")))
sketch14.addConstraint(Sketcher.Constraint("DistanceX", 0, 3, -1, 1, Q("12.75 mm")))
pocket10 = body.newObject("PartDesign::Pocket", "Pocket009")
pocket10.Profile = sketch14
pocket10.Length = 1
pocket10.Reversed = True

sketch15 = body.newObject("Sketcher::SketchObject", "Sketch014")
sketch15.Placement = App.Placement(V(-25.35, 0, -29.725), App.Rotation(V(0, 0, -1), V(0.5, -0.866025404, 0), V(-0.866025404, -0.5, 0), "ZXY"))
sketch15.addGeometry(Part.LineSegment(V(-4, 0, 0), V(-4, -8, 0)), False)
sketch15.addGeometry(Part.LineSegment(V(-4, -8, 0), V(4, -8, 0)), False)
sketch15.addGeometry(Part.LineSegment(V(4, -8, 0), V(4, 0, 0)), False)
sketch15.addGeometry(Part.LineSegment(V(4, 0, 0), V(-4, 0, 0)), False)
sketch15.addConstraint(Sketcher.Constraint("Coincident", 0, 2, 1, 1))
sketch15.addConstraint(Sketcher.Constraint("Coincident", 1, 2, 2, 1))
sketch15.addConstraint(Sketcher.Constraint("Coincident", 2, 2, 3, 1))
sketch15.addConstraint(Sketcher.Constraint("Coincident", 3, 2, 0, 1))
sketch15.addConstraint(Sketcher.Constraint("Vertical", 0))
sketch15.addConstraint(Sketcher.Constraint("Horizontal", 1))
sketch15.addConstraint(Sketcher.Constraint("Vertical", 2))
sketch15.addConstraint(Sketcher.Constraint("Horizontal", 3))
sketch15.addConstraint(Sketcher.Constraint("PointOnObject", 2, 2, -1))
sketch15.addConstraint(Sketcher.Constraint("Equal", 3, 0))
sketch15.addConstraint(Sketcher.Constraint("DistanceX", 1, 1, 1, 2, Q("8 mm")))
sketch15.addConstraint(Sketcher.Constraint("DistanceX", 0, 2, -1, 1, Q("4.125 mm")))
pad5 = body.newObject("PartDesign::Pad", "Pad004")
pad5.Profile = sketch15
pad5.Length = 4
pad5.Reversed = True

sketch16 = body.newObject("Sketcher::SketchObject", "Sketch015")
sketch16.Placement = App.Placement(V(-21.8859, 2, -29.725), App.Rotation(V(0, 0, -1), V(-0.5, 0.866025404, 0), V(0.866025404, 0.5, 0), "ZXY"))
sketch16.addGeometry(Part.LineSegment(V(3.9, 6.9, 0), V(3.9, 8, 0)), False)
sketch16.addGeometry(Part.LineSegment(V(3.9, 8, 0), V(-4.1, 8, 0)), False)
sketch16.addGeometry(Part.LineSegment(V(-4.1, 8, 0), V(-4.1, 6.9, 0)), False)
sketch16.addGeometry(Part.LineSegment(V(-4.1, 6.9, 0), V(3.9, 6.9, 0)), False)
sketch16.addConstraint(Sketcher.Constraint("Coincident", 0, 2, 1, 1))
sketch16.addConstraint(Sketcher.Constraint("Coincident", 1, 2, 2, 1))
sketch16.addConstraint(Sketcher.Constraint("Coincident", 2, 2, 3, 1))
sketch16.addConstraint(Sketcher.Constraint("Coincident", 3, 2, 0, 1))
sketch16.addConstraint(Sketcher.Constraint("Vertical", 0))
sketch16.addConstraint(Sketcher.Constraint("Horizontal", 1))
sketch16.addConstraint(Sketcher.Constraint("Vertical", 2))
sketch16.addConstraint(Sketcher.Constraint("Horizontal", 3))
sketch16.addConstraint(Sketcher.Constraint("DistanceX", 1, 2, 1, 1, Q("8 mm")))
sketch16.addConstraint(Sketcher.Constraint("DistanceY", -1, 1, 0, 2, Q("8 mm")))
sketch16.addConstraint(Sketcher.Constraint("DistanceY", 0, 1, 0, 2, Q("1.0718 mm")))
sketch16.addConstraint(Sketcher.Constraint("DistanceX", -1, 1, 0, 2, Q("3.875 mm")))
pad6 = body.newObject("PartDesign::Pad", "Pad005")
pad6.Profile = sketch16
pad6.Length = 1
doc.recompute()

datumplane = body.newObject("PartDesign::Plane", "DatumPlane")
datumplane.AttachmentSupport = (doc.getObject("YZ_Plane"), [""])
datumplane.MapMode = "FlatFace"
datumplane.AttachmentOffset = App.Placement(V(0, 0, -12.75), App.Rotation())
mirrored = body.newObject("PartDesign::Mirrored", "Mirrored")
mirrored.Originals = [pad5]
mirrored.MirrorPlane = (datumplane, [""])
body.Tip = mirrored

sketch17 = body.newObject("Sketcher::SketchObject", "Sketch016")
sketch17.Placement = App.Placement(V(-0.15, 8, -33.6), App.Rotation(V(0, 0, 1), V(0.5, 0.866025404, 0), V(-0.866025404, 0.5, 0), "ZXY"))
sketch17.addGeometry(Part.LineSegment(V(0, 0, 0), V(8, 0, 0)), False)
sketch17.addGeometry(Part.LineSegment(V(8, 0, 0), V(8, 1.1, 0)), False)
sketch17.addGeometry(Part.LineSegment(V(8, 1.1, 0), V(0, 1.1, 0)), False)
sketch17.addGeometry(Part.LineSegment(V(0, 1.1, 0), V(0, 0, 0)), False)
sketch17.addConstraint(Sketcher.Constraint("Coincident", 0, 2, 1, 1))
sketch17.addConstraint(Sketcher.Constraint("Coincident", 1, 2, 2, 1))
sketch17.addConstraint(Sketcher.Constraint("Coincident", 2, 2, 3, 1))
sketch17.addConstraint(Sketcher.Constraint("Coincident", 3, 2, 0, 1))
sketch17.addConstraint(Sketcher.Constraint("Horizontal", 0))
sketch17.addConstraint(Sketcher.Constraint("Vertical", 1))
sketch17.addConstraint(Sketcher.Constraint("Horizontal", 2))
sketch17.addConstraint(Sketcher.Constraint("Vertical", 3))
sketch17.addConstraint(Sketcher.Constraint("Coincident", 3, 2, -1, 1))
sketch17.addConstraint(Sketcher.Constraint("DistanceX", 0, 1, 0, 2, Q("8 mm")))
sketch17.addConstraint(Sketcher.Constraint("DistanceY", 1, 1, 1, 2, Q("1.0718 mm")))
pad7 = body.newObject("PartDesign::Pad", "Pad006")
pad7.Profile = sketch17
pad7.Length = 1

sketch18 = body.newObject("Sketcher::SketchObject", "Sketch017")
sketch18.Placement = App.Placement(V(3.85, 6.9282, -25.6), App.Rotation(V(0, 0, -1), V(0.5, 0.866025404, 0), V(0.866025404, -0.5, 0), "ZXY"))
sketch18.addGeometry(Part.Circle(V(4, -4, 0), V(0, 0, 1), 2.8), False)
sketch18.addConstraint(Sketcher.Constraint("Diameter", 0, Q("5.5 mm")))
sketch18.addConstraint(Sketcher.Constraint("DistanceX", -1, 1, 0, 3, Q("4 mm")))
sketch18.addConstraint(Sketcher.Constraint("DistanceY", 0, 3, -1, 1, Q("4 mm")))
pocket11 = body.newObject("PartDesign::Pocket", "Pocket010")
pocket11.Profile = sketch18
pocket11.Length = 6

sketch19 = body.newObject("Sketcher::SketchObject", "Sketch018")
sketch19.Placement = App.Placement(V(-3.3462, 6.4641, -29.6), App.Rotation(V(0, 0, -1), V(0.5, 0.866025404, 0), V(0.866025404, -0.5, 0), "ZXY"))
sketch19.addGeometry(Part.Circle(V(0, 0, 0), V(0, 0, 1), 2), False)
sketch19.addConstraint(Sketcher.Constraint("Coincident", 0, 3, -1, 1))
sketch19.addConstraint(Sketcher.Constraint("Diameter", 0, Q("4 mm")))
pocket12 = body.newObject("PartDesign::Pocket", "Pocket011")
pocket12.Profile = sketch19
pocket12.Length = 6
doc.recompute()

datumplane2 = body.newObject("PartDesign::Plane", "DatumPlane001")
datumplane2.AttachmentSupport = (doc.getObject("YZ_Plane"), [""])
datumplane2.MapMode = "FlatFace"
datumplane2.AttachmentOffset = App.Placement(V(0, 0, -12.75), App.Rotation())
mirrored2 = body.newObject("PartDesign::Mirrored", "Mirrored001")
mirrored2.Originals = [pocket11, pocket12]
mirrored2.MirrorPlane = (datumplane2, [""])
body.Tip = mirrored2

sketch20 = body.newObject("Sketcher::SketchObject", "Sketch019")
sketch20.AttachmentSupport = (doc.getObject("XY_Plane"), [""])
sketch20.MapMode = "FlatFace"
sketch20.AttachmentOffset = App.Placement(V(0, 0, -33.6), App.Rotation())
sketch20.addGeometry(Part.LineSegment(V(-25.4, 9.2, 0), V(-25.4, 0, 0)), False)
sketch20.addGeometry(Part.LineSegment(V(-25.4, 0, 0), V(-29.4, 6.9, 0)), False)
sketch20.addGeometry(Part.LineSegment(V(-29.4, 6.9, 0), V(-25.4, 9.2, 0)), False)
sketch20.addConstraint(Sketcher.Constraint("Coincident", 0, 2, 1, 1))
sketch20.addConstraint(Sketcher.Constraint("Coincident", 1, 2, 2, 1))
sketch20.addConstraint(Sketcher.Constraint("Coincident", 2, 2, 0, 1))
sketch20.addConstraint(Sketcher.Constraint("Vertical", 0))
sketch20.addConstraint(Sketcher.Constraint("PointOnObject", 0, 2, -1))
sketch20.addConstraint(Sketcher.Constraint("Perpendicular", 1, 2))
sketch20.addConstraint(Sketcher.Constraint("Angle", 1, Q("120 deg")))
sketch20.addConstraint(Sketcher.Constraint("Distance", 1, Q("8 mm")))
sketch20.addConstraint(Sketcher.Constraint("DistanceX", 0, 2, -1, 1, Q("25.35 mm")))
pad8 = body.newObject("PartDesign::Pad", "Pad007")
pad8.Profile = sketch20
pad8.Length = 2
pad8.Reversed = True

sketch21 = body.newObject("Sketcher::SketchObject", "Sketch020")
sketch21.AttachmentSupport = (doc.getObject("XY_Plane"), [""])
sketch21.MapMode = "FlatFace"
sketch21.AttachmentOffset = App.Placement(V(0, 0, -25.6), App.Rotation())
sketch21.addGeometry(Part.LineSegment(V(-25.4, 0, 0), V(-25.4, 9.2, 0)), False)
sketch21.addGeometry(Part.LineSegment(V(-25.4, 9.2, 0), V(-29.4, 6.9, 0)), False)
sketch21.addGeometry(Part.LineSegment(V(-29.4, 6.9, 0), V(-25.4, 0, 0)), False)
sketch21.addConstraint(Sketcher.Constraint("Coincident", 0, 2, 1, 1))
sketch21.addConstraint(Sketcher.Constraint("Coincident", 1, 2, 2, 1))
sketch21.addConstraint(Sketcher.Constraint("Coincident", 2, 2, 0, 1))
sketch21.addConstraint(Sketcher.Constraint("Vertical", 0))
sketch21.addConstraint(Sketcher.Constraint("PointOnObject", 2, 2, -1))
sketch21.addConstraint(Sketcher.Constraint("Perpendicular", 1, 2))
sketch21.addConstraint(Sketcher.Constraint("Angle", 1, Q("-150 deg")))
sketch21.addConstraint(Sketcher.Constraint("Distance", 2, Q("8 mm")))
sketch21.addConstraint(Sketcher.Constraint("DistanceX", 0, 2, -1, 1, Q("25.35 mm")))
pad9 = body.newObject("PartDesign::Pad", "Pad008")
pad9.Profile = sketch21
pad9.Length = 2

sketch22 = body.newObject("Sketcher::SketchObject", "Sketch021")
sketch22.AttachmentSupport = (doc.getObject("XY_Plane"), [""])
sketch22.MapMode = "FlatFace"
sketch22.AttachmentOffset = App.Placement(V(0, 0, -25.6), App.Rotation())
sketch22.addGeometry(Part.LineSegment(V(-0.1, 9.2, 0), V(-0.1, 0, 0)), False)
sketch22.addGeometry(Part.LineSegment(V(-0.1, 0, 0), V(3.9, 6.9, 0)), False)
sketch22.addGeometry(Part.LineSegment(V(3.9, 6.9, 0), V(-0.1, 9.2, 0)), False)
sketch22.addConstraint(Sketcher.Constraint("Coincident", 0, 2, 1, 1))
sketch22.addConstraint(Sketcher.Constraint("Coincident", 1, 2, 2, 1))
sketch22.addConstraint(Sketcher.Constraint("Coincident", 2, 2, 0, 1))
sketch22.addConstraint(Sketcher.Constraint("Vertical", 0))
sketch22.addConstraint(Sketcher.Constraint("PointOnObject", 0, 2, -1))
sketch22.addConstraint(Sketcher.Constraint("Perpendicular", 1, 2))
sketch22.addConstraint(Sketcher.Constraint("Angle", 1, Q("60 deg")))
sketch22.addConstraint(Sketcher.Constraint("Distance", 1, Q("8 mm")))
sketch22.addConstraint(Sketcher.Constraint("DistanceX", 0, 2, -1, 1, Q("0.15 mm")))
pad10 = body.newObject("PartDesign::Pad", "Pad009")
pad10.Profile = sketch22
pad10.Length = 2

sketch23 = body.newObject("Sketcher::SketchObject", "Sketch022")
sketch23.AttachmentSupport = (doc.getObject("XY_Plane"), [""])
sketch23.MapMode = "FlatFace"
sketch23.AttachmentOffset = App.Placement(V(0, 0, -33.6), App.Rotation())
sketch23.addGeometry(Part.LineSegment(V(-0.1, 0, 0), V(-0.1, 9.2, 0)), False)
sketch23.addGeometry(Part.LineSegment(V(-0.1, 9.2, 0), V(3.9, 6.9, 0)), False)
sketch23.addGeometry(Part.LineSegment(V(3.9, 6.9, 0), V(-0.1, 0, 0)), False)
sketch23.addConstraint(Sketcher.Constraint("Coincident", 0, 2, 1, 1))
sketch23.addConstraint(Sketcher.Constraint("Coincident", 1, 2, 2, 1))
sketch23.addConstraint(Sketcher.Constraint("Coincident", 2, 2, 0, 1))
sketch23.addConstraint(Sketcher.Constraint("Vertical", 0))
sketch23.addConstraint(Sketcher.Constraint("PointOnObject", 2, 2, -1))
sketch23.addConstraint(Sketcher.Constraint("Perpendicular", 1, 2))
sketch23.addConstraint(Sketcher.Constraint("Angle", 1, Q("-30 deg")))
sketch23.addConstraint(Sketcher.Constraint("Distance", 2, Q("8 mm")))
sketch23.addConstraint(Sketcher.Constraint("DistanceX", 0, 2, -1, 1, Q("0.15 mm")))
pad11 = body.newObject("PartDesign::Pad", "Pad010")
pad11.Profile = sketch23
pad11.Length = 2
pad11.Reversed = True

sketch24 = body.newObject("Sketcher::SketchObject", "Sketch023")
sketch24.AttachmentSupport = (doc.getObject("XZ_Plane"), [""])
sketch24.MapMode = "FlatFace"
sketch24.AttachmentOffset = App.Placement(V(0, 0, -2), App.Rotation())
sketch24.addGeometry(Part.Circle(V(-12.8, -29.6, 0), V(0, 0, 1), 2.1), False)
sketch24.addConstraint(Sketcher.Constraint("Diameter", 0, Q("4.3 mm")))
sketch24.addConstraint(Sketcher.Constraint("DistanceY", 0, 3, -1, 1, Q("29.6 mm")))
sketch24.addConstraint(Sketcher.Constraint("DistanceX", 0, 3, -1, 1, Q("12.75 mm")))
pocket13 = body.newObject("PartDesign::Pocket", "Pocket012")
pocket13.Profile = sketch24
pocket13.Length = 10

doc.recompute()
